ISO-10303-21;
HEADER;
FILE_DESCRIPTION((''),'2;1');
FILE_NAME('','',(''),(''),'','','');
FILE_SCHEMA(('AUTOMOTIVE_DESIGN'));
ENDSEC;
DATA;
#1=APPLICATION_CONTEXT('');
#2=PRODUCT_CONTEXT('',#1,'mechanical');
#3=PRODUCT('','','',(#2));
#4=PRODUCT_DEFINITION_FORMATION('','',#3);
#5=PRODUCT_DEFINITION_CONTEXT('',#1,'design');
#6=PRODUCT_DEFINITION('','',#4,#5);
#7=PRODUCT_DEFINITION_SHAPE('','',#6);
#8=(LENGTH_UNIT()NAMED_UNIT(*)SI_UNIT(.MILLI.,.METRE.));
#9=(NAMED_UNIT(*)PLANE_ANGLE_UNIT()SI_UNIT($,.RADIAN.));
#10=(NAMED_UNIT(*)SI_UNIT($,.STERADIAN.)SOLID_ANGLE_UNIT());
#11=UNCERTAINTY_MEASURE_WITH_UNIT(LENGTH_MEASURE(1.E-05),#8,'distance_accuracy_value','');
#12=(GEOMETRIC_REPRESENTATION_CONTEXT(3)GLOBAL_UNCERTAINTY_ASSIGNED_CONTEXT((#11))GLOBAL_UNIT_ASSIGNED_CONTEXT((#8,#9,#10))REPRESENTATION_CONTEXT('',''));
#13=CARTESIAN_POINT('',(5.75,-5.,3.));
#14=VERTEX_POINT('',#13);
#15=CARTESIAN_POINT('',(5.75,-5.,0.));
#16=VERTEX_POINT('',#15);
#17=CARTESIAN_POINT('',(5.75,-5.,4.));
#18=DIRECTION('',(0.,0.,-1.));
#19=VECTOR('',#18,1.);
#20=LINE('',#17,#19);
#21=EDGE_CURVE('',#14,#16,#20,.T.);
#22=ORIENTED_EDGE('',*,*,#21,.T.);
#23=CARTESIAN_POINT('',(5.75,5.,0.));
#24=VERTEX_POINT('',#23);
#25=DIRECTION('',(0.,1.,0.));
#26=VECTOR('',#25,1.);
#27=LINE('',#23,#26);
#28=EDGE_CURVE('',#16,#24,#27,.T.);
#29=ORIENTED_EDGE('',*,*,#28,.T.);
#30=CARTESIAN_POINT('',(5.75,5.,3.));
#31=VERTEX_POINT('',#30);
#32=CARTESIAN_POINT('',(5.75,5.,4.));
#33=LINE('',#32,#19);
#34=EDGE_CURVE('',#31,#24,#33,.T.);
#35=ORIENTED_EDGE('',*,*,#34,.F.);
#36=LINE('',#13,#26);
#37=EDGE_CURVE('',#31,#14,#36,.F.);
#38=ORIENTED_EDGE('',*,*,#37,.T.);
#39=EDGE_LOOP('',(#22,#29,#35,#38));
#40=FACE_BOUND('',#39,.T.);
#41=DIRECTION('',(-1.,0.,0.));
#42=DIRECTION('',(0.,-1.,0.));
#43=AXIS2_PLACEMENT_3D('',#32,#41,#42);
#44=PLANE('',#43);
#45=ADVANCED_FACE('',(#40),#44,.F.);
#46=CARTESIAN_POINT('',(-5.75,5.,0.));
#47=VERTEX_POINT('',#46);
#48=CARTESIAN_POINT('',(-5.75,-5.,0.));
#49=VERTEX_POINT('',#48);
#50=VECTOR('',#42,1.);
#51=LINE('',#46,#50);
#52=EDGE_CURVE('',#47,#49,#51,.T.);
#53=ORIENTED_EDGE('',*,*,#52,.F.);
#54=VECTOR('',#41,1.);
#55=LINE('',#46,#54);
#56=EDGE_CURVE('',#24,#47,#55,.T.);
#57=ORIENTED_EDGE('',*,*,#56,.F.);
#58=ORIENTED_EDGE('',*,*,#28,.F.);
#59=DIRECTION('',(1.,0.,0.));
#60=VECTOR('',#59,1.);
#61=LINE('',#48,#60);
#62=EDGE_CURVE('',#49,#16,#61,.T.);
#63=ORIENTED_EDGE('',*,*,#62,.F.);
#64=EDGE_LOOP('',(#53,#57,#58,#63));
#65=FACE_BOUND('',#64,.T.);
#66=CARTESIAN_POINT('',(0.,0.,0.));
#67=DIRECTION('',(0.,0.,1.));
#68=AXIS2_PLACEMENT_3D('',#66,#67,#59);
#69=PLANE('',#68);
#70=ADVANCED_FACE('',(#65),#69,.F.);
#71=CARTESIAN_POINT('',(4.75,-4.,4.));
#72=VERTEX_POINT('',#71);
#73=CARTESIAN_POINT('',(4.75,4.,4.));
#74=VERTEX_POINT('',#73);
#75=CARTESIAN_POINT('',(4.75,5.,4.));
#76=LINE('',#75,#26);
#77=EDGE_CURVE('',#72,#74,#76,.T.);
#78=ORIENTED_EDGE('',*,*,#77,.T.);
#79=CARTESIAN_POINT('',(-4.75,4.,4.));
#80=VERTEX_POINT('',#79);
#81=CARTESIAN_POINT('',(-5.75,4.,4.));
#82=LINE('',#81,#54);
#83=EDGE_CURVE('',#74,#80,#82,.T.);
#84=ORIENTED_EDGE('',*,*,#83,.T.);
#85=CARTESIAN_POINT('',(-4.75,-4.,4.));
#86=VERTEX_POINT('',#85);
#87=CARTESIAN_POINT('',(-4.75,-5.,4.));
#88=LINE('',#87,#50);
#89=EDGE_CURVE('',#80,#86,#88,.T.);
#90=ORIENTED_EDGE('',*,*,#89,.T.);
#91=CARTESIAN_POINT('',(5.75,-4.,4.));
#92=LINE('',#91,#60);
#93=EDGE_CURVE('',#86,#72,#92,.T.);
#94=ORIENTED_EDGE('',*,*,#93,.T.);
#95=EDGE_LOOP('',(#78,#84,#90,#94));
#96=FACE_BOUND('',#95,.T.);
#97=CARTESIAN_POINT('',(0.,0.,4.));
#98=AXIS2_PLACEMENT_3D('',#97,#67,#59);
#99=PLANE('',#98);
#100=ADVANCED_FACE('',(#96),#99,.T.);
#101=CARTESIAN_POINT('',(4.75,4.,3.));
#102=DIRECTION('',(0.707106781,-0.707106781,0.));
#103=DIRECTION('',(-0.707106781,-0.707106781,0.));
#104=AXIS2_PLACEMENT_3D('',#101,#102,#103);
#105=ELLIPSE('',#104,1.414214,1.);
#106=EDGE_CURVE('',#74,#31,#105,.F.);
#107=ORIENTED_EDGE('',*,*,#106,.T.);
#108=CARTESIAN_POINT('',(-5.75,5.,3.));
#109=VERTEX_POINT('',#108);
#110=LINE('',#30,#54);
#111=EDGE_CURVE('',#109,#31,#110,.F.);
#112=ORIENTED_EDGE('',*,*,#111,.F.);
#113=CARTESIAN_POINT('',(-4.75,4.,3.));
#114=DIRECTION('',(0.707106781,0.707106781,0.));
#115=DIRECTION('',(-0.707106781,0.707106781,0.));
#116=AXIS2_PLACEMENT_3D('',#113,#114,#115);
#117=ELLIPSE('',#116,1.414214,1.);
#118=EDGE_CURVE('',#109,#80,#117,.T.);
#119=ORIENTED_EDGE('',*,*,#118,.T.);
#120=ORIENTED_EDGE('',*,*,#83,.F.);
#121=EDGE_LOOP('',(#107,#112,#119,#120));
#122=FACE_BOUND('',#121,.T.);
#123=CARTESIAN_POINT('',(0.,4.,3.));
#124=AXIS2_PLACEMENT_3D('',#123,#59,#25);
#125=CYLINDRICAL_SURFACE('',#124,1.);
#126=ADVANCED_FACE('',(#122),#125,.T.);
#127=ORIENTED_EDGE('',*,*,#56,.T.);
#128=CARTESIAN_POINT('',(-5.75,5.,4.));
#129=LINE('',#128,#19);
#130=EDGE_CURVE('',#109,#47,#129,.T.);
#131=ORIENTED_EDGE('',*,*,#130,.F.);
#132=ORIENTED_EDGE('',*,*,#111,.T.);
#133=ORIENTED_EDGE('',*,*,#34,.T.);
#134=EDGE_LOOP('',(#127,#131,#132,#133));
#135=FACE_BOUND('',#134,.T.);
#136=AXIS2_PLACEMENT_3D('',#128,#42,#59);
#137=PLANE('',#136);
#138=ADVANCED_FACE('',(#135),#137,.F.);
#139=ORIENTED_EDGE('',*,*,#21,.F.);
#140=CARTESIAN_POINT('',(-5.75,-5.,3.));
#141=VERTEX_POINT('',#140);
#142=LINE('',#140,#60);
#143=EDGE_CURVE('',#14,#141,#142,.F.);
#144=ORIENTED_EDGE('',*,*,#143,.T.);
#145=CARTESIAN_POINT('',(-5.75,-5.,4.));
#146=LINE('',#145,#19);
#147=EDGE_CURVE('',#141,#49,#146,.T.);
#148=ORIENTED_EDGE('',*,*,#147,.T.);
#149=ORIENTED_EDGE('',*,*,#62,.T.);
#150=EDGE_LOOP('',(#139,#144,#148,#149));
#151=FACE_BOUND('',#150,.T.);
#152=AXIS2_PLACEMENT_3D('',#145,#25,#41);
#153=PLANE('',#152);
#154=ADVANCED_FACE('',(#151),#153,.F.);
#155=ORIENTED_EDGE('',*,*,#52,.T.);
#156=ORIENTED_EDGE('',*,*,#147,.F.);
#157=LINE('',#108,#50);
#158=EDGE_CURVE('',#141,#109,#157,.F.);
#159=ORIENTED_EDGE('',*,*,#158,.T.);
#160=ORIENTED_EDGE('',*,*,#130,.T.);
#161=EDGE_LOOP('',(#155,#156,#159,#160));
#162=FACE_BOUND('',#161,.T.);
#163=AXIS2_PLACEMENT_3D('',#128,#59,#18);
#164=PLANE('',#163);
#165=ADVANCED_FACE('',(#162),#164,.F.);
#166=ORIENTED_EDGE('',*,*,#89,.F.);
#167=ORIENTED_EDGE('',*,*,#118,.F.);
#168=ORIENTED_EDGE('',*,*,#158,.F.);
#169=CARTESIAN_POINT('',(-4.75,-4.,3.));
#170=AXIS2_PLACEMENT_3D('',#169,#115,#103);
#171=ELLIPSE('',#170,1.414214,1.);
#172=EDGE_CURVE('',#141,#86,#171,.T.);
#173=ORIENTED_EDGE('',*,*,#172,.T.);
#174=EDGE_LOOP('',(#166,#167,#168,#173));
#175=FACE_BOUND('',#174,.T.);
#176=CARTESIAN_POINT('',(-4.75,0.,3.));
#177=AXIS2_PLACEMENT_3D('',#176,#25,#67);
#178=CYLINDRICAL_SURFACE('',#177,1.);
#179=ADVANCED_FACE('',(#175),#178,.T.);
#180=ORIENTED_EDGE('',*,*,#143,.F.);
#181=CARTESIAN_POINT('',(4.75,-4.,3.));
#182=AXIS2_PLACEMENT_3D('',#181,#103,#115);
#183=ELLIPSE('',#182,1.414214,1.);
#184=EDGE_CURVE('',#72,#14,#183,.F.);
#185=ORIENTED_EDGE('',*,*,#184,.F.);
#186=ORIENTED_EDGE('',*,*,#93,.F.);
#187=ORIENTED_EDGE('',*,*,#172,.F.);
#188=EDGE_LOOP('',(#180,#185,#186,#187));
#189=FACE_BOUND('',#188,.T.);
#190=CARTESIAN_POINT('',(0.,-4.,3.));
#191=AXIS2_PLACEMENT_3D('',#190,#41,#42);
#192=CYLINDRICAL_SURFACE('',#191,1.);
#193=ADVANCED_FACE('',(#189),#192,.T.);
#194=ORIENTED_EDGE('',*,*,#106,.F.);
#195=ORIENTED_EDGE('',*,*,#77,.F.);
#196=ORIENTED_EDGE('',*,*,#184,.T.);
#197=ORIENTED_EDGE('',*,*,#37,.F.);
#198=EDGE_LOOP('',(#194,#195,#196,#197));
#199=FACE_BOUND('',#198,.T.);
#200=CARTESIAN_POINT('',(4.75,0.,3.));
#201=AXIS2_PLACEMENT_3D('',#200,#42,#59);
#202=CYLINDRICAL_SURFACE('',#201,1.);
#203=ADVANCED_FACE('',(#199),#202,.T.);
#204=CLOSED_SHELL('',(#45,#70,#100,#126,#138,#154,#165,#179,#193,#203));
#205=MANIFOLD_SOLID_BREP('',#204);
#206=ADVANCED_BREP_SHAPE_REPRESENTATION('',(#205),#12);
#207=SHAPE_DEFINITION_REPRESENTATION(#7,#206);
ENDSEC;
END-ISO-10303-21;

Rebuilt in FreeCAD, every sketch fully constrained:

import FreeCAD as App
import Part
import Sketcher
from FreeCAD import Vector
Q = App.Units.Quantity


def edges_at(feature, points):
    """Names of the edges that pass closest to the given points."""
    edges = feature.Shape.Edges
    near = lambda p: min(range(len(edges)), key=lambda i: edges[i].distToShape(Part.Vertex(*p))[0])
    return sorted({f"Edge{near(p) + 1}" for p in points})

doc = App.newDocument("Part")
params = doc.addObject("Spreadsheet::Sheet", "Params")
for row, (alias, value) in enumerate([
    ("sketch1_height", "10 mm"),
    ("sketch1_width", "11.5 mm"),
    ("pad1_length", "4 mm"),
    ("fillet_radius", "1 mm"),
], start=1):
    params.set(f"A{row}", alias)
    params.set(f"B{row}", "=" + value)
    params.setAlias(f"B{row}", alias)

body = doc.addObject("PartDesign::Body", "Body")

# Sketch on XY plane
sketch1 = body.newObject("Sketcher::SketchObject", "Sketch")
sketch1.AttachmentSupport = (doc.getObject("XY_Plane"), [""])
sketch1.MapMode = "FlatFace"
sketch1.addGeometry(Part.LineSegment(Vector(-5.75, 5, 0), Vector(-5.75, -5, 0)), False)
sketch1.addGeometry(Part.LineSegment(Vector(-5.75, -5, 0), Vector(5.75, -5, 0)), False)
sketch1.addGeometry(Part.LineSegment(Vector(5.75, -5, 0), Vector(5.75, 5, 0)), False)
sketch1.addGeometry(Part.LineSegment(Vector(5.75, 5, 0), Vector(-5.75, 5, 0)), False)
sketch1.addConstraint(Sketcher.Constraint("Coincident", 0, 2, 1, 1))
sketch1.addConstraint(Sketcher.Constraint("Coincident", 1, 2, 2, 1))
sketch1.addConstraint(Sketcher.Constraint("Coincident", 2, 2, 3, 1))
sketch1.addConstraint(Sketcher.Constraint("Coincident", 3, 2, 0, 1))
sketch1.addConstraint(Sketcher.Constraint("Vertical", 0))
sketch1.addConstraint(Sketcher.Constraint("Horizontal", 1))
sketch1.addConstraint(Sketcher.Constraint("Vertical", 2))
sketch1.addConstraint(Sketcher.Constraint("Horizontal", 3))
sketch1.addConstraint(Sketcher.Constraint("Symmetric", 0, 2, 2, 2, -1, 1))
sketch1.addConstraint(Sketcher.Constraint("DistanceY", 0, 2, 0, 1, Q("10 mm")))
sketch1.addConstraint(Sketcher.Constraint("DistanceX", 1, 1, 1, 2, Q("11.5 mm")))
sketch1.setExpression("Constraints[9]", "Params.sketch1_height")
sketch1.setExpression("Constraints[10]", "Params.sketch1_width")
pad1 = body.newObject("PartDesign::Pad", "Pad")
pad1.Profile = sketch1
pad1.setExpression("Length", "Params.pad1_length")
doc.recompute()

fillet = body.newObject("PartDesign::Fillet", "Fillet")
fillet.Base = (pad1, edges_at(pad1, [
    (5.75, 0, 4),
    (0, 5, 4),
    (-5.75, 0, 4),
    (0, -5, 4),
]))
fillet.setExpression("Radius", "Params.fillet_radius")

doc.recompute()
